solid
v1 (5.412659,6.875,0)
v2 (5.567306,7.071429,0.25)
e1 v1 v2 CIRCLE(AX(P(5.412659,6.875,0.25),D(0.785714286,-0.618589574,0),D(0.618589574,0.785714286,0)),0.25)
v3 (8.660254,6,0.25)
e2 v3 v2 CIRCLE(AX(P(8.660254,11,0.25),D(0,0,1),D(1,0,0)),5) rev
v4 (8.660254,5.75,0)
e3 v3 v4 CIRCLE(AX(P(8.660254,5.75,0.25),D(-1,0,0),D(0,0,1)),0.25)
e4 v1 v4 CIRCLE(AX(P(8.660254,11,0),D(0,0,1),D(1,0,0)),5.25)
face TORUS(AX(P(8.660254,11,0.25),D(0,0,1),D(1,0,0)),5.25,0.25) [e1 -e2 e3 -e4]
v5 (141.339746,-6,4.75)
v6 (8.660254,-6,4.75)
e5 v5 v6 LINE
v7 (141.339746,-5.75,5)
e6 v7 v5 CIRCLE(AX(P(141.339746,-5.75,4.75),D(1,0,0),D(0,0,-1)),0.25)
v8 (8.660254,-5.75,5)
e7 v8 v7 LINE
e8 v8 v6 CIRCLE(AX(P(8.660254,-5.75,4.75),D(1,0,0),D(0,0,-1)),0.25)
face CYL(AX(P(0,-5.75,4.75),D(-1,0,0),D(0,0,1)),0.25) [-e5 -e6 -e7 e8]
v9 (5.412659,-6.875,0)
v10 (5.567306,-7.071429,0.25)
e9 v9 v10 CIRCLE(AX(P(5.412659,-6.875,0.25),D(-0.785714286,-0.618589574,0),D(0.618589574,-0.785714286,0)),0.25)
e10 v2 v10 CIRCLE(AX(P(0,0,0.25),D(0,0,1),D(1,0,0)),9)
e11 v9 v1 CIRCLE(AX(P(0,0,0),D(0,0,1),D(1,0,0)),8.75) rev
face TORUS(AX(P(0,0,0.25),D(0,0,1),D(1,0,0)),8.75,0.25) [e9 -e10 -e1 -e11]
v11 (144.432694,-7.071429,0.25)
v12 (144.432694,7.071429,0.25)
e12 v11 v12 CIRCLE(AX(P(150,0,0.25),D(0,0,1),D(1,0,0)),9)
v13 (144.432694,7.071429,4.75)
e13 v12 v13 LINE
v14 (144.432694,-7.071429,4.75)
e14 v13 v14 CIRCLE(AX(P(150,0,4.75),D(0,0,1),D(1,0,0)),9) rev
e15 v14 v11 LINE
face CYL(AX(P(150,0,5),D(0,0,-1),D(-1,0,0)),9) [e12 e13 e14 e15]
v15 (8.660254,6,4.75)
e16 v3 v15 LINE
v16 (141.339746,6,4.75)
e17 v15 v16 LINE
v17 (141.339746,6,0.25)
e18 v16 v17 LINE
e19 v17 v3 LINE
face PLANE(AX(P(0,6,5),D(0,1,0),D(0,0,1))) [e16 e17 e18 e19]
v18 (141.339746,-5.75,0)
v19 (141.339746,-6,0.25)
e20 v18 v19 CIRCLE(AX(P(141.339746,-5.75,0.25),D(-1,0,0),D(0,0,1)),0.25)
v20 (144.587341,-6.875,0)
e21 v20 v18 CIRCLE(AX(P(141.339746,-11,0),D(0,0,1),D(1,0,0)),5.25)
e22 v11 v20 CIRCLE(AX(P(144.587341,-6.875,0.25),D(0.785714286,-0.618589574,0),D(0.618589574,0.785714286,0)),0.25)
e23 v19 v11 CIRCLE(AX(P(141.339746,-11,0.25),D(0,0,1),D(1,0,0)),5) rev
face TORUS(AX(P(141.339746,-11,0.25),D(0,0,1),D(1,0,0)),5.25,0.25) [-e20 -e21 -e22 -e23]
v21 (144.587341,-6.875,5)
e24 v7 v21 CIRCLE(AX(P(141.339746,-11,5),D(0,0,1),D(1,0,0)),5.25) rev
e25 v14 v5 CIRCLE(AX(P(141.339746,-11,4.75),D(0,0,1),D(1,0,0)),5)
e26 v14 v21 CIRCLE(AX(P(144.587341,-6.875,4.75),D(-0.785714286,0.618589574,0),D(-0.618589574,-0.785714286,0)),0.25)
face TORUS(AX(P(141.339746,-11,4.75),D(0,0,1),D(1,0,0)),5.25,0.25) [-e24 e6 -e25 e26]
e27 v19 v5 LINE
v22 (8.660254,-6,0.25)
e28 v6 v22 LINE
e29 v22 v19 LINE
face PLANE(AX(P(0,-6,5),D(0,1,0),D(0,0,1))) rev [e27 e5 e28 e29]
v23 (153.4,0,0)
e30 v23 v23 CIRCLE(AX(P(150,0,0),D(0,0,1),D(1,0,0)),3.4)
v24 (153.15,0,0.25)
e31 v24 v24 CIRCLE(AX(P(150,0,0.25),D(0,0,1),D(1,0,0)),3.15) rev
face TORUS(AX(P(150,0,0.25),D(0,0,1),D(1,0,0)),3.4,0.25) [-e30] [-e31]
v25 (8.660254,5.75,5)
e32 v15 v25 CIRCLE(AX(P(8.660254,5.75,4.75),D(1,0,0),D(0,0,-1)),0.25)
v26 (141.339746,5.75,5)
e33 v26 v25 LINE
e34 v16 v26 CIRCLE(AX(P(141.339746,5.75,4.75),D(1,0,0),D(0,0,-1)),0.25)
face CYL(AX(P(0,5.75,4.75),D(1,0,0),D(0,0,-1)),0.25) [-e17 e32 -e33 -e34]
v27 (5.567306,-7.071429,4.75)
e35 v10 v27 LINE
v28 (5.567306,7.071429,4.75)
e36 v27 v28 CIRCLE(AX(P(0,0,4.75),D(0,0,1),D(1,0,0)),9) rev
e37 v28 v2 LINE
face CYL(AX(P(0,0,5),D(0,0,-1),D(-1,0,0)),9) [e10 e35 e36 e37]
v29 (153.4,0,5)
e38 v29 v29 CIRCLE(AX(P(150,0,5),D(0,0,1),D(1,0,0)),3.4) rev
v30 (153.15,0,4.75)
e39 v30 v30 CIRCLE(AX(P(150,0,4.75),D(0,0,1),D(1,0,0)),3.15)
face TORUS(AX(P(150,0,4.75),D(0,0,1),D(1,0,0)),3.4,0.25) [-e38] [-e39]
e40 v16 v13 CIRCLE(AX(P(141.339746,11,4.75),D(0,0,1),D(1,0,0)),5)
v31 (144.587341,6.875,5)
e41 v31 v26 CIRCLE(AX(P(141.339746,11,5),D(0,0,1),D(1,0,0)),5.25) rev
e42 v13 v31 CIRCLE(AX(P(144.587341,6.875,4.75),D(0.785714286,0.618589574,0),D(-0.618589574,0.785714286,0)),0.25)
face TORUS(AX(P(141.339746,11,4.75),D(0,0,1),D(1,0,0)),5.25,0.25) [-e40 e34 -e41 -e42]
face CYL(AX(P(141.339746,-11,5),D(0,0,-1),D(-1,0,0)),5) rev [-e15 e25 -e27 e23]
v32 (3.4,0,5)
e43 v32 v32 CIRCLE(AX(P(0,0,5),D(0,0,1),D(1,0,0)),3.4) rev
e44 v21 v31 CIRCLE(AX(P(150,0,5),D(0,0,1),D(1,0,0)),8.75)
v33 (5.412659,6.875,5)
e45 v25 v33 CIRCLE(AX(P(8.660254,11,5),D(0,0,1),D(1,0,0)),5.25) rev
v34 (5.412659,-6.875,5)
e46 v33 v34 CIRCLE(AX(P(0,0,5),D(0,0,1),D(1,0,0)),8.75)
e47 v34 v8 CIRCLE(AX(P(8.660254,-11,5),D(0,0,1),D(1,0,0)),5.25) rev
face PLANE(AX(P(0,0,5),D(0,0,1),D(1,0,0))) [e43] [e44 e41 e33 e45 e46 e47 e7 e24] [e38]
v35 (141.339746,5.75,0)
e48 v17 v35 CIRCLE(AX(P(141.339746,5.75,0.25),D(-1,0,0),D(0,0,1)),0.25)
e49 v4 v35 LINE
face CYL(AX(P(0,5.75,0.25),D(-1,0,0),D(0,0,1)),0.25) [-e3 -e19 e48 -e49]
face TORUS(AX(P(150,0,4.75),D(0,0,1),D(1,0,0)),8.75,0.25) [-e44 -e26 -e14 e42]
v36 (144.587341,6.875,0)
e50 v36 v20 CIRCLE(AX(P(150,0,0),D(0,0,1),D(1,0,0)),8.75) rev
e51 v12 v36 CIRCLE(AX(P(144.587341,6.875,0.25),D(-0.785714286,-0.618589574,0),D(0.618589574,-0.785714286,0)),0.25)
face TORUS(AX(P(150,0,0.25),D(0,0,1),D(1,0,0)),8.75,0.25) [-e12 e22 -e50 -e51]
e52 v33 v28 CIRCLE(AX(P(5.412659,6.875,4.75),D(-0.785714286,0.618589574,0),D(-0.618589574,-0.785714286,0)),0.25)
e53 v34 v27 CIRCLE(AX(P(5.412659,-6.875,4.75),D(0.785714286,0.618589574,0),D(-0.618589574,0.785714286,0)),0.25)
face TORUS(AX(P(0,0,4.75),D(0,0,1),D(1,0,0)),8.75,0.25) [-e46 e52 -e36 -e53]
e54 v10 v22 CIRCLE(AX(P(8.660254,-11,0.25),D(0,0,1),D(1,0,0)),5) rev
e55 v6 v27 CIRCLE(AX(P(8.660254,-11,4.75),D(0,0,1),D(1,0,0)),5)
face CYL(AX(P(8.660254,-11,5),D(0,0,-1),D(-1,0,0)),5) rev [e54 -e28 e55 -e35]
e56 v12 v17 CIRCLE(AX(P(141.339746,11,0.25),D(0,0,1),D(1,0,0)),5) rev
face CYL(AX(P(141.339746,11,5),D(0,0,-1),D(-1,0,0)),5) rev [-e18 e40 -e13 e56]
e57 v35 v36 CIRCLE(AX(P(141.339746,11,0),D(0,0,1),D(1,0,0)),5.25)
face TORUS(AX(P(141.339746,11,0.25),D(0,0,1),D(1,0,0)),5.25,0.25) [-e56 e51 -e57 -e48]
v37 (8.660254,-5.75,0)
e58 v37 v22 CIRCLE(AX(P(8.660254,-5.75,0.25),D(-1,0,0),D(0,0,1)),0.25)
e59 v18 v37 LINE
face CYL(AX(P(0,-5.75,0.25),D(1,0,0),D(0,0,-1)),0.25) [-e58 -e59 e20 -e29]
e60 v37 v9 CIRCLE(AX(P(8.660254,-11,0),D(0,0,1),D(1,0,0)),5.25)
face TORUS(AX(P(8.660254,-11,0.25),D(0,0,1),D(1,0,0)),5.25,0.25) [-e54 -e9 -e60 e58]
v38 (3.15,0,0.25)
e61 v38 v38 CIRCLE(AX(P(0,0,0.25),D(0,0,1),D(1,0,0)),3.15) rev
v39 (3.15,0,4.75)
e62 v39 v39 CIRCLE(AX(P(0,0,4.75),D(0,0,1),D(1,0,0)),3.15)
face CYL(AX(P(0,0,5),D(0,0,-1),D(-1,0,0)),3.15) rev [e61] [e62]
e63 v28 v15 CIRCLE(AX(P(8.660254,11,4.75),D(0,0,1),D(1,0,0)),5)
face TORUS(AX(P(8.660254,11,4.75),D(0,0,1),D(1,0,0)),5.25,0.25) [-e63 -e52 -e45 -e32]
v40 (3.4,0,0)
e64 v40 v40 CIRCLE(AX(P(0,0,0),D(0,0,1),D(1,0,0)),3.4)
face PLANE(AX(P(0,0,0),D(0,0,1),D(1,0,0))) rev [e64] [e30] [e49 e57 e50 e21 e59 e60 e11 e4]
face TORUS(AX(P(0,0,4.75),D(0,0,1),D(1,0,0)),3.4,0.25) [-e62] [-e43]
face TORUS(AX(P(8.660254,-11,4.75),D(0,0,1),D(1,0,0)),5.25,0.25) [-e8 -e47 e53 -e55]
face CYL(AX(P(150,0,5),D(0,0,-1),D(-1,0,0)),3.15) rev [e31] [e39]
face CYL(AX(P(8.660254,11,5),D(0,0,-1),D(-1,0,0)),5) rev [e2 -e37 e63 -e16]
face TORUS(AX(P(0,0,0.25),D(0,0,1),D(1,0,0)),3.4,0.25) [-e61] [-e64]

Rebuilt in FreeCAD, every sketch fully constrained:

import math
import FreeCAD as App
import Part
import Sketcher

V = App.Vector
Q = App.Units.Quantity


def edges_at(feature, points):
    """Names of the edges that pass closest to the given points."""
    edges = feature.Shape.Edges
    near = lambda p: min(range(len(edges)), key=lambda i: edges[i].distToShape(Part.Vertex(*p))[0])
    return sorted({f"Edge{near(p) + 1}" for p in points})

doc = App.newDocument("Part")
params = doc.addObject("Spreadsheet::Sheet", "Params")
for row, (alias, value) in enumerate([
    ("sketch1_radius", "9 mm"),
    ("sketch1_diameter", "6.3 mm"),
    ("pad1_length", "5 mm"),
    ("fillet_radius", "5 mm"),
    ("fillet2_radius", "0.25 mm"),
], start=1):
    params.set(f"A{row}", alias)
    params.set(f"B{row}", "=" + value)
    params.setAlias(f"B{row}", alias)

body = doc.addObject("PartDesign::Body", "Body")

sketch1 = body.newObject("Sketcher::SketchObject", "Sketch")
sketch1.AttachmentSupport = (doc.getObject("XY_Plane"), [""])
sketch1.MapMode = "FlatFace"
sketch1.addGeometry(Part.LineSegment(V(143.3, 6, 0), V(6.7, 6, 0)), False)
sketch1.addGeometry(Part.ArcOfCircle(Part.Circle(V(0, 0, 0), V(0, 0, 1), 9), math.radians(42), math.radians(318)), False)
sketch1.addGeometry(Part.LineSegment(V(6.7, -6, 0), V(143.3, -6, 0)), False)
sketch1.addGeometry(Part.ArcOfCircle(Part.Circle(V(150, 0, 0), V(0, 0, 1), 9), math.radians(-138), math.radians(138)), False)
sketch1.addGeometry(Part.Circle(V(0, 0, 0), V(0, 0, 1), 3.1), False)
sketch1.addGeometry(Part.Circle(V(150, 0, 0), V(0, 0, 1), 3.1), False)
sketch1.addConstraint(Sketcher.Constraint("Coincident", 0, 2, 1, 1))
sketch1.addConstraint(Sketcher.Constraint("Coincident", 1, 2, 2, 1))
sketch1.addConstraint(Sketcher.Constraint("Coincident", 2, 2, 3, 1))
sketch1.addConstraint(Sketcher.Constraint("Coincident", 3, 2, 0, 1))
sketch1.addConstraint(Sketcher.Constraint("Horizontal", 0))
sketch1.addConstraint(Sketcher.Constraint("Horizontal", 2))
sketch1.addConstraint(Sketcher.Constraint("Coincident", 1, 3, -1, 1))
sketch1.addConstraint(Sketcher.Constraint("Coincident", 4, 3, -1, 1))
sketch1.addConstraint(Sketcher.Constraint("Coincident", 5, 3, 3, 3))
sketch1.addConstraint(Sketcher.Constraint("Equal", 1, 3))
sketch1.addConstraint(Sketcher.Constraint("Equal", 4, 5))
sketch1.addConstraint(Sketcher.Constraint("Symmetric", 2, 2, 3, 2, -1))
sketch1.addConstraint(Sketcher.Constraint("Radius", 1, Q("9 mm")))
sketch1.addConstraint(Sketcher.Constraint("Diameter", 4, Q("6.3 mm")))
sketch1.addConstraint(Sketcher.Constraint("DistanceX", -1, 1, 3, 3, Q("150 mm")))
sketch1.addConstraint(Sketcher.Constraint("DistanceY", -1, 1, 0, 2, Q("6 mm")))
sketch1.setExpression("Constraints[12]", "Params.sketch1_radius")
sketch1.setExpression("Constraints[13]", "Params.sketch1_diameter")
pad1 = body.newObject("PartDesign::Pad", "Pad")
pad1.Profile = sketch1
pad1.setExpression("Length", "Params.pad1_length")
doc.recompute()

fillet = body.newObject("PartDesign::Fillet", "Fillet")
fillet.Base = (pad1, edges_at(pad1, [
    (143.292, -6, 2.5),
    (6.708, -6, 2.5),
    (6.708, 6, 2.5),
    (143.292, 6, 2.5),
]))
fillet.setExpression("Radius", "Params.fillet_radius")
doc.recompute()

fillet2 = body.newObject("PartDesign::Fillet", "Fillet001")
fillet2.Base = (fillet, edges_at(fillet, [
    (75, -6, 0),
    (75, -6, 5),
    (-9, 0, 0),
    (-9, 0, 5),
    (159, 0, 0),
    (146.85, 0, 5),
    (159, 0, 5),
    (75, 6, 0),
    (75, 6, 5),
    (7.024, -6.275, 0),
    (7.024, -6.275, 5),
    (-3.15, 0, 5),
    (142.976, -6.275, 0),
    (142.976, -6.275, 5),
    (142.976, 6.275, 0),
    (142.976, 6.275, 5),
    (7.024, 6.275, 0),
    (7.024, 6.275, 5),
    (-3.15, 0, 0),
    (146.85, 0, 0),
]))
fillet2.setExpression("Radius", "Params.fillet2_radius")

doc.recompute()
